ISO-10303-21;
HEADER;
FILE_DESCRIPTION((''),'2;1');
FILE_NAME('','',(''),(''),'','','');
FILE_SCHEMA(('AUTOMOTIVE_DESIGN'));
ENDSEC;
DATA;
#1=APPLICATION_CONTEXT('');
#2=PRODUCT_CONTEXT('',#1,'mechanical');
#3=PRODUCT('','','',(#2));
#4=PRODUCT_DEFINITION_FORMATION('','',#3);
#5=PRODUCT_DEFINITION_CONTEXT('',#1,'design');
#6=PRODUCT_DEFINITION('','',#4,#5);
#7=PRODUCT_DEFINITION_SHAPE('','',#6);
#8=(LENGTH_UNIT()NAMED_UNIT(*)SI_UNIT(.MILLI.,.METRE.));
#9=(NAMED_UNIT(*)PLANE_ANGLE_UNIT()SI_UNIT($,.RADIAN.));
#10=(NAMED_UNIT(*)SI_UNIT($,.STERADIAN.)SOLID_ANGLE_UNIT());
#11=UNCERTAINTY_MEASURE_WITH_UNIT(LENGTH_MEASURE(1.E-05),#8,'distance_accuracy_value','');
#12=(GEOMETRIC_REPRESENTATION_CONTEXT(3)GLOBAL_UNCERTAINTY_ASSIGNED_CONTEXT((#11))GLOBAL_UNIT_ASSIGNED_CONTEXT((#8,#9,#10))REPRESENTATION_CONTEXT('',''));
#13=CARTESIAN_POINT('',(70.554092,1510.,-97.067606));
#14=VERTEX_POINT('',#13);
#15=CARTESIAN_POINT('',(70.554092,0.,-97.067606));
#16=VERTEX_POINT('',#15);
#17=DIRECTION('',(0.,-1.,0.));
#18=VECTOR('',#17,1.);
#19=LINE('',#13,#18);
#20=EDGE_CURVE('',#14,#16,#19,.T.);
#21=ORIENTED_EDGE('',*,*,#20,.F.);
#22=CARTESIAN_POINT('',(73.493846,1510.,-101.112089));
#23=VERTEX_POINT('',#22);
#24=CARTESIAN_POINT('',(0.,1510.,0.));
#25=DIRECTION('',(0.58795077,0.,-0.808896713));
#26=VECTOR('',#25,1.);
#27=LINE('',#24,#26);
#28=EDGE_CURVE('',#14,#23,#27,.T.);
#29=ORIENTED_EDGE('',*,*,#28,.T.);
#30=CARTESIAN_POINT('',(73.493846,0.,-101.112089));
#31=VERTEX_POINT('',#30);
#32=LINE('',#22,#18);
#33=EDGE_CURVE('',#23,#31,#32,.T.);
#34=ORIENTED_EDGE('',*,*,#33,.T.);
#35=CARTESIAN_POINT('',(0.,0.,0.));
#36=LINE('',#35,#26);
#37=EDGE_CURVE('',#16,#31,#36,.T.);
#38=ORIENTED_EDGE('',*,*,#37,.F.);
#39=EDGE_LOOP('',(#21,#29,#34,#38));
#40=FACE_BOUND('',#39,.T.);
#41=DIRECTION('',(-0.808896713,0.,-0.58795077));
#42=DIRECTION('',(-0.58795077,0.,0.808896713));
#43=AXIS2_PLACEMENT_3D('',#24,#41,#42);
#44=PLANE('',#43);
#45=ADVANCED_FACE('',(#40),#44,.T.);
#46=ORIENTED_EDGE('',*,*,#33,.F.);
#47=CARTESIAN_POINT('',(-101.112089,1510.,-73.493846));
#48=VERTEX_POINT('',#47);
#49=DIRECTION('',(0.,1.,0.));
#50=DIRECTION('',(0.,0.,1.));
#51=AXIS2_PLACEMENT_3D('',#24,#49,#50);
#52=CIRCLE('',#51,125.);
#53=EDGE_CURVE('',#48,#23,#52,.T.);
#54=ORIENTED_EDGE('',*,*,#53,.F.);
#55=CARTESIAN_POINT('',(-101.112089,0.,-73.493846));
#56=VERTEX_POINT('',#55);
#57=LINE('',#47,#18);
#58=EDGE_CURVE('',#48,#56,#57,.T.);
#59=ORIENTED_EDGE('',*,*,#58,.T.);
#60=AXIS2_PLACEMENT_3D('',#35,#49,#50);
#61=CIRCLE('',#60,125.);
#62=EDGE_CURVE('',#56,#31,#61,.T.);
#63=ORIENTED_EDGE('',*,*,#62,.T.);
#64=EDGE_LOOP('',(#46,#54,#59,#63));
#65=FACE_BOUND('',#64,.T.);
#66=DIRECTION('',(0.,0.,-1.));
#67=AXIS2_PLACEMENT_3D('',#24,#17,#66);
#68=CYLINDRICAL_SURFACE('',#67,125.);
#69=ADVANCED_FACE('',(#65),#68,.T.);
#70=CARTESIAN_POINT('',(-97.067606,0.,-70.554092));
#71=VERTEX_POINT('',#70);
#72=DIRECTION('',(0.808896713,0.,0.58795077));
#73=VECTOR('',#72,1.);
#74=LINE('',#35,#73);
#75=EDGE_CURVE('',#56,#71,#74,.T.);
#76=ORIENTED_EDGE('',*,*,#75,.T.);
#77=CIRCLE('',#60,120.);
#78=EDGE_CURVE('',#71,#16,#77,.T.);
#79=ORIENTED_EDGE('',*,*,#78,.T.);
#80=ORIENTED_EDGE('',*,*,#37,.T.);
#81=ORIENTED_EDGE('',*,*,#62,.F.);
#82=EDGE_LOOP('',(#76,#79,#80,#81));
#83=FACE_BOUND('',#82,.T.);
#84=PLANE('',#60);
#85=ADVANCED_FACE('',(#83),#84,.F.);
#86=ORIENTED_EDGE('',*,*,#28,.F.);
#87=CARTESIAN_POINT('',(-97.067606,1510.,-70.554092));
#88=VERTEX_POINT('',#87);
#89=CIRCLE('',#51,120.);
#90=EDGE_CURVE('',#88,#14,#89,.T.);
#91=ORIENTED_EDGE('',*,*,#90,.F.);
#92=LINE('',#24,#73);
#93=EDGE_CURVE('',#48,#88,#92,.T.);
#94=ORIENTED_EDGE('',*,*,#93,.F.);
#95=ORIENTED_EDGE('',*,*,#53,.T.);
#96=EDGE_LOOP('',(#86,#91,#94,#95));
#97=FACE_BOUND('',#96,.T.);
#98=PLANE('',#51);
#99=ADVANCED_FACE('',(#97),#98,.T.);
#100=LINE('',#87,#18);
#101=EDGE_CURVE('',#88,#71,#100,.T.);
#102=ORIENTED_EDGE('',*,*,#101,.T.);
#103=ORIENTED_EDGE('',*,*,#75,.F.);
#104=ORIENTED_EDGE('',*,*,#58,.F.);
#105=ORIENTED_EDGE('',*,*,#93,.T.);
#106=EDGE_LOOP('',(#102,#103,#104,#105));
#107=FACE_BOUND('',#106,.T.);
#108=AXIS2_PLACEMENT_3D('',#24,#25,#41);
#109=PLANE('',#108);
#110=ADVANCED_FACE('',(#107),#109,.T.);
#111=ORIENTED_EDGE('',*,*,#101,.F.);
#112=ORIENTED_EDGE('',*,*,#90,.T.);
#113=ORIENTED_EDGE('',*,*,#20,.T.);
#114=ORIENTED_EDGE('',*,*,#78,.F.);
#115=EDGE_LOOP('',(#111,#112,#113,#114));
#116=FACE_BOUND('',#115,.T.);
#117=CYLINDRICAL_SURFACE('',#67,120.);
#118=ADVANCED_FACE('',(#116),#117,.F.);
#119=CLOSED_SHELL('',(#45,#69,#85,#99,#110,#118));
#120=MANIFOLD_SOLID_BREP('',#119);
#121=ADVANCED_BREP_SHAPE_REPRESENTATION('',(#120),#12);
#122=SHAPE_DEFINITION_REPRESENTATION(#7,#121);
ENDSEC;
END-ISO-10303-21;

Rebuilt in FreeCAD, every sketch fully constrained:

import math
import FreeCAD as App
import Part
import Sketcher

V = App.Vector

doc = App.newDocument("Part")
body = doc.addObject("PartDesign::Body", "Body")

# Sketch on XZ plane
sketch1 = body.newObject("Sketcher::SketchObject", "Sketch")
sketch1.AttachmentSupport = (doc.getObject("XZ_Plane"), [""])
sketch1.MapMode = "FlatFace"
sketch1.addGeometry([
    Part.ArcOfCircle(Part.Circle(V(0, 0, 0), V(0, 0, 1), 120), math.radians(-54), math.radians(0)),  # 0
    Part.ArcOfCircle(Part.Circle(V(0, 0, 0), V(0, 0, 1), 120), math.radians(0), math.radians(180)),  # 1
    Part.ArcOfCircle(Part.Circle(V(0, 0, 0), V(0, 0, 1), 120), math.radians(-180), math.radians(-144)),  # 2
    Part.LineSegment(V(-97.1, -70.6, 0), V(-101.1, -73.5, 0)),  # 3
    Part.ArcOfCircle(Part.Circle(V(0, 0, 0), V(0, 0, 1), 125), math.radians(180), math.radians(216)),  # 4
    Part.ArcOfCircle(Part.Circle(V(0, 0, 0), V(0, 0, 1), 125), math.radians(0), math.radians(180)),  # 5
    Part.ArcOfCircle(Part.Circle(V(0, 0, 0), V(0, 0, 1), 125), math.radians(-54), math.radians(0)),  # 6
    Part.LineSegment(V(73.5, -101.1, 0), V(70.6, -97.1, 0)),  # 7
], False)
sketch1.addConstraint([
    Sketcher.Constraint("Tangent", 0, 2, 1, 1),
    Sketcher.Constraint("Tangent", 1, 2, 2, 1),
    Sketcher.Constraint("Coincident", 2, 2, 3, 1),
    Sketcher.Constraint("Coincident", 3, 2, 4, 2),
    Sketcher.Constraint("Tangent", 4, 1, 5, 2),
    Sketcher.Constraint("Tangent", 5, 1, 6, 2),
    Sketcher.Constraint("Coincident", 6, 1, 7, 1),
    Sketcher.Constraint("Coincident", 7, 2, 0, 1),
    Sketcher.Constraint("Coincident", 0, 3, -1, 1),
    Sketcher.Constraint("Coincident", 4, 3, -1, 1),
    Sketcher.Constraint("Equal", 0, 1),
    Sketcher.Constraint("Equal", 1, 2),
    Sketcher.Constraint("Equal", 4, 5),
    Sketcher.Constraint("Equal", 5, 6),
    Sketcher.Constraint("PointOnObject", 0, 2, -1),
    Sketcher.Constraint("PointOnObject", 1, 2, -1),
    Sketcher.Constraint("PointOnObject", 4, 1, -1),
    Sketcher.Constraint("PointOnObject", 5, 1, -1),
    Sketcher.Constraint("Perpendicular", 3, 7),
    Sketcher.Constraint("Radius", 0, 120.0),
    Sketcher.Constraint("Radius", 4, 125.0),
    Sketcher.Constraint("DistanceX", 3, 2, -1, 1, 101.112089),
    Sketcher.Constraint("DistanceY", 6, 1, -1, 1, 101.112089),
    Sketcher.Constraint("DistanceX", 2, 2, -1, 1, 97.067606),
])
pad1 = body.newObject("PartDesign::Pad", "Pad")
pad1.Profile = sketch1
pad1.Length = 1510
pad1.Reversed = True

doc.recompute()
